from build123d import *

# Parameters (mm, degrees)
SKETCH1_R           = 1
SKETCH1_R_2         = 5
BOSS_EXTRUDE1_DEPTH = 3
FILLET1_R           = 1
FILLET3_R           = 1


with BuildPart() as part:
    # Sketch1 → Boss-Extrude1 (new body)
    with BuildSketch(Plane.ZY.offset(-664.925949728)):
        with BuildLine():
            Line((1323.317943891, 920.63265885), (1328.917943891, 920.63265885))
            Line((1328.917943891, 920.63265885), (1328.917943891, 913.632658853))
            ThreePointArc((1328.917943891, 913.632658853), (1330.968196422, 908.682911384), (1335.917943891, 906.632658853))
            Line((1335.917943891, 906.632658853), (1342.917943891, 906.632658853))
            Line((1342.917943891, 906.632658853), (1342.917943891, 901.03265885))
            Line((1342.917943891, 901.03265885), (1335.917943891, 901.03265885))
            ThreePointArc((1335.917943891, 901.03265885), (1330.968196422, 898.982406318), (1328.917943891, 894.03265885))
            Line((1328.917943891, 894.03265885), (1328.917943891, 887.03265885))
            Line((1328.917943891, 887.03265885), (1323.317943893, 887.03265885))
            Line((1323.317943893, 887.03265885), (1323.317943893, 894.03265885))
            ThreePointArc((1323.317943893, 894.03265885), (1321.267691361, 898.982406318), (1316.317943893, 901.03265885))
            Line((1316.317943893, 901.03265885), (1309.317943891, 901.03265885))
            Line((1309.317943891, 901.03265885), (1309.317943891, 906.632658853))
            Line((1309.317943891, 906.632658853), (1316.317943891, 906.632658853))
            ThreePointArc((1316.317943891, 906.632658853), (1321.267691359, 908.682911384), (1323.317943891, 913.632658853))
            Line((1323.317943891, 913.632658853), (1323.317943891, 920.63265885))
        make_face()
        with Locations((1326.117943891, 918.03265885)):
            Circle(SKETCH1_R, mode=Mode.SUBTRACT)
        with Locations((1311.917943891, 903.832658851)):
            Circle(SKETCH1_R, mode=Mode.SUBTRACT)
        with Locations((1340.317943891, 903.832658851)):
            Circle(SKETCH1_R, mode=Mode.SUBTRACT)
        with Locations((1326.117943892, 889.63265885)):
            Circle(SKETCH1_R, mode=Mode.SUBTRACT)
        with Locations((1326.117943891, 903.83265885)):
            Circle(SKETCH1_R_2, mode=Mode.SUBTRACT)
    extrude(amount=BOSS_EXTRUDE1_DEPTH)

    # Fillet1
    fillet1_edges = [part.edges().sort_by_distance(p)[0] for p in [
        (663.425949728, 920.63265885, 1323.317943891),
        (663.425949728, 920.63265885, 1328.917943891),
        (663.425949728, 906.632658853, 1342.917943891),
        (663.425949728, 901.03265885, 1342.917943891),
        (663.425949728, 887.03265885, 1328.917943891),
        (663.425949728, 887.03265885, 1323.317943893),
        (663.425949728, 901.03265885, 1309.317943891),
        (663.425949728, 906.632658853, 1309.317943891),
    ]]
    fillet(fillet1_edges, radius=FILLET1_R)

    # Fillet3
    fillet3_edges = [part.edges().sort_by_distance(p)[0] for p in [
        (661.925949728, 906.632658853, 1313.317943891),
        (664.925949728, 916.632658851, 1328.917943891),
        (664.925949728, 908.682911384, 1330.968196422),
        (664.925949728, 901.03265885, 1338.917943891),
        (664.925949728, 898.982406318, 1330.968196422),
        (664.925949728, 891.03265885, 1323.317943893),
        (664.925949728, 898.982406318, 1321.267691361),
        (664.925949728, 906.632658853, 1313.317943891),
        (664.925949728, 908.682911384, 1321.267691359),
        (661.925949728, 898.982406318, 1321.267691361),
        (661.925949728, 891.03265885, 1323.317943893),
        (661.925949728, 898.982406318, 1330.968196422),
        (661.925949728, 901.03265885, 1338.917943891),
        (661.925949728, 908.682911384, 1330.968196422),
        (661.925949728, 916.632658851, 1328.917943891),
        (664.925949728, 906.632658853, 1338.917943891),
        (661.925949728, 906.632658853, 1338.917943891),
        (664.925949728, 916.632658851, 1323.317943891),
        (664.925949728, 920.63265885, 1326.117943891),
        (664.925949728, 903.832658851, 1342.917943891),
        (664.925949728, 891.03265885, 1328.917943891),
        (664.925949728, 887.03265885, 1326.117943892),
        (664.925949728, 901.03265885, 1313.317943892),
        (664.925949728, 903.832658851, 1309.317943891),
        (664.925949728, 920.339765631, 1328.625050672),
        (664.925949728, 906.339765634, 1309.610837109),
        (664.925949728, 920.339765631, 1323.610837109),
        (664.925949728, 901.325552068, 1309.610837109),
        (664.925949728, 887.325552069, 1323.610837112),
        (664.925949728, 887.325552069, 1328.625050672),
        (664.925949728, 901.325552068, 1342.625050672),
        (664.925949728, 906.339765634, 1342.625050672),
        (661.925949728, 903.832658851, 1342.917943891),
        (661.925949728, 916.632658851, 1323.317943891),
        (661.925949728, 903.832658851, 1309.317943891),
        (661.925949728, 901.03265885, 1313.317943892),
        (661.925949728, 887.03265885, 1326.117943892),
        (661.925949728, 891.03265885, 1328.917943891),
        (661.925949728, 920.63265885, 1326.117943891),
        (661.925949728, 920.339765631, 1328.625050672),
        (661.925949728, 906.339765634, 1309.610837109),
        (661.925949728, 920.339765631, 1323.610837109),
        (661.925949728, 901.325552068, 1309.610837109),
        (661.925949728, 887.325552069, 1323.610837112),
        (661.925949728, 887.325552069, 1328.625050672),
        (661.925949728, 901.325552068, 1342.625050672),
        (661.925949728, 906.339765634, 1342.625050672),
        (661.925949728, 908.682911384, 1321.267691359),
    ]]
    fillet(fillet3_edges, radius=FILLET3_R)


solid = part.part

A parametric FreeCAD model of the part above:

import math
import FreeCAD as App
import Part
import Sketcher

V = App.Vector


def edges_at(feature, points):
    """Names of the edges that pass closest to the given points."""
    edges = feature.Shape.Edges
    near = lambda p: min(range(len(edges)), key=lambda i: edges[i].distToShape(Part.Vertex(*p))[0])
    return sorted({f"Edge{near(p) + 1}" for p in points})

doc = App.newDocument("Part")
body = doc.addObject("PartDesign::Body", "Body")

# Sketch on YZ plane
sketch1 = body.newObject("Sketcher::SketchObject", "Sketch")
sketch1.AttachmentSupport = (doc.getObject("YZ_Plane"), [""])
sketch1.MapMode = "FlatFace"
sketch1.AttachmentOffset = App.Placement(V(0, 0, 664.92595), App.Rotation())
sketch1.addGeometry([
    Part.LineSegment(V(920.6, 1328.9, 0), V(920.6, 1323.3, 0)),  # 0
    Part.LineSegment(V(920.6, 1323.3, 0), V(913.6, 1323.3, 0)),  # 1
    Part.ArcOfCircle(Part.Circle(V(913.6, 1316.3, 0), V(0, 0, 1), 7), math.radians(90), math.radians(180)),  # 2
    Part.LineSegment(V(906.6, 1316.3, 0), V(906.6, 1309.3, 0)),  # 3
    Part.LineSegment(V(906.6, 1309.3, 0), V(901, 1309.3, 0)),  # 4
    Part.LineSegment(V(901, 1309.3, 0), V(901, 1316.3, 0)),  # 5
    Part.ArcOfCircle(Part.Circle(V(894, 1316.3, 0), V(0, 0, 1), 7), math.radians(0), math.radians(90)),  # 6
    Part.LineSegment(V(894, 1323.3, 0), V(887, 1323.3, 0)),  # 7
    Part.LineSegment(V(887, 1323.3, 0), V(887, 1328.9, 0)),  # 8
    Part.LineSegment(V(887, 1328.9, 0), V(894, 1328.9, 0)),  # 9
    Part.ArcOfCircle(Part.Circle(V(894, 1335.9, 0), V(0, 0, 1), 7), math.radians(-90), math.radians(0)),  # 10
    Part.LineSegment(V(901, 1335.9, 0), V(901, 1342.9, 0)),  # 11
    Part.LineSegment(V(901, 1342.9, 0), V(906.6, 1342.9, 0)),  # 12
    Part.LineSegment(V(906.6, 1342.9, 0), V(906.6, 1335.9, 0)),  # 13
    Part.ArcOfCircle(Part.Circle(V(913.6, 1335.9, 0), V(0, 0, 1), 7), math.radians(180), math.radians(270)),  # 14
    Part.LineSegment(V(913.6, 1328.9, 0), V(920.6, 1328.9, 0)),  # 15
    Part.Circle(V(889.6, 1326.1, 0), V(0, 0, 1), 1),  # 16
    Part.Circle(V(903.8, 1340.3, 0), V(0, 0, 1), 1),  # 17
    Part.Circle(V(903.8, 1326.1, 0), V(0, 0, 1), 5),  # 18
    Part.Circle(V(918, 1326.1, 0), V(0, 0, 1), 1),  # 19
    Part.Circle(V(903.8, 1311.9, 0), V(0, 0, 1), 1),  # 20
], False)
sketch1.addConstraint([
    Sketcher.Constraint("Coincident", 0, 2, 1, 1),
    Sketcher.Constraint("Tangent", 1, 2, 2, 1),
    Sketcher.Constraint("Tangent", 2, 2, 3, 1),
    Sketcher.Constraint("Coincident", 3, 2, 4, 1),
    Sketcher.Constraint("Coincident", 4, 2, 5, 1),
    Sketcher.Constraint("Tangent", 5, 2, 6, 1),
    Sketcher.Constraint("Tangent", 6, 2, 7, 1),
    Sketcher.Constraint("Coincident", 7, 2, 8, 1),
    Sketcher.Constraint("Coincident", 8, 2, 9, 1),
    Sketcher.Constraint("Tangent", 9, 2, 10, 1),
    Sketcher.Constraint("Tangent", 10, 2, 11, 1),
    Sketcher.Constraint("Coincident", 11, 2, 12, 1),
    Sketcher.Constraint("Coincident", 12, 2, 13, 1),
    Sketcher.Constraint("Tangent", 13, 2, 14, 1),
    Sketcher.Constraint("Tangent", 14, 2, 15, 1),
    Sketcher.Constraint("Coincident", 15, 2, 0, 1),
    Sketcher.Constraint("Vertical", 0),
    Sketcher.Constraint("Horizontal", 1),
    Sketcher.Constraint("Vertical", 3),
    Sketcher.Constraint("Horizontal", 4),
    Sketcher.Constraint("Vertical", 5),
    Sketcher.Constraint("Horizontal", 7),
    Sketcher.Constraint("Vertical", 8),
    Sketcher.Constraint("Horizontal", 9),
    Sketcher.Constraint("Vertical", 11),
    Sketcher.Constraint("Horizontal", 12),
    Sketcher.Constraint("Vertical", 13),
    Sketcher.Constraint("Horizontal", 15),
    Sketcher.Constraint("Equal", 2, 6),
    Sketcher.Constraint("Equal", 6, 10),
    Sketcher.Constraint("Equal", 10, 14),
    Sketcher.Constraint("Equal", 16, 17),
    Sketcher.Constraint("Equal", 17, 19),
    Sketcher.Constraint("Equal", 19, 20),
    Sketcher.Constraint("Horizontal", 2, 3, 6, 3),
    Sketcher.Constraint("Horizontal", 10, 3, 14, 3),
    Sketcher.Constraint("Horizontal", 16, 3, 18, 3),
    Sketcher.Constraint("Horizontal", 18, 3, 19, 3),
    Sketcher.Constraint("Vertical", 6, 3, 10, 3),
    Sketcher.Constraint("Vertical", 2, 3, 14, 3),
    Sketcher.Constraint("Vertical", 17, 3, 18, 3),
    Sketcher.Constraint("Vertical", 18, 3, 20, 3),
    Sketcher.Constraint("Equal", 1, 7),
    Sketcher.Constraint("Equal", 12, 0),
    Sketcher.Constraint("Equal", 15, 3),
    Sketcher.Constraint("Equal", 5, 11),
    Sketcher.Constraint("Diameter", 16, 2.0),
    Sketcher.Constraint("Diameter", 18, 10.0),
    Sketcher.Constraint("Radius", 2, 7.0),
    Sketcher.Constraint("DistanceX", 1, 2, 1, 1, 7.0),
    Sketcher.Constraint("DistanceX", 4, 2, 4, 1, 5.6),
    Sketcher.Constraint("DistanceX", 16, 3, 14, 3, 24.0),
    Sketcher.Constraint("DistanceY", 2, 3, 17, 3, 24.0),
    Sketcher.Constraint("DistanceX", 10, 3, 19, 3, 24.0),
    Sketcher.Constraint("DistanceY", 16, 3, 10, 3, 9.8),
    Sketcher.Constraint("DistanceX", 10, 3, 17, 3, 9.8),
    Sketcher.Constraint("DistanceY", 20, 3, 2, 3, 4.4),
    Sketcher.Constraint("DistanceX", -1, 1, 2, 3, 913.632659),
    Sketcher.Constraint("DistanceY", -1, 1, 2, 3, 1316.317944),
])
pad1 = body.newObject("PartDesign::Pad", "Pad")
pad1.Profile = sketch1
pad1.Length = 3
pad1.Reversed = True
doc.recompute()

fillet = body.newObject("PartDesign::Fillet", "Fillet")
fillet.Base = (pad1, edges_at(pad1, [
    (663.426, 920.633, 1323.318),
    (663.426, 920.633, 1328.918),
    (663.426, 906.633, 1342.918),
    (663.426, 901.033, 1342.918),
    (663.426, 887.033, 1328.918),
    (663.426, 887.033, 1323.318),
    (663.426, 901.033, 1309.318),
    (663.426, 906.633, 1309.318),
]))
fillet.Radius = 1
doc.recompute()

fillet2 = body.newObject("PartDesign::Fillet", "Fillet001")
fillet2.Base = (fillet, edges_at(fillet, [
    (661.926, 906.633, 1313.318),
    (664.926, 916.633, 1328.918),
    (664.926, 908.683, 1330.968),
    (664.926, 901.033, 1338.918),
    (664.926, 898.982, 1330.968),
    (664.926, 891.033, 1323.318),
    (664.926, 898.982, 1321.268),
    (664.926, 906.633, 1313.318),
    (664.926, 908.683, 1321.268),
    (661.926, 898.982, 1321.268),
    (661.926, 891.033, 1323.318),
    (661.926, 898.982, 1330.968),
    (661.926, 901.033, 1338.918),
    (661.926, 908.683, 1330.968),
    (661.926, 916.633, 1328.918),
    (664.926, 906.633, 1338.918),
    (661.926, 906.633, 1338.918),
    (664.926, 916.633, 1323.318),
    (664.926, 920.633, 1326.118),
    (664.926, 903.833, 1342.918),
    (664.926, 891.033, 1328.918),
    (664.926, 887.033, 1326.118),
    (664.926, 901.033, 1313.318),
    (664.926, 903.833, 1309.318),
    (664.926, 920.34, 1328.625),
    (664.926, 906.34, 1309.611),
    (664.926, 920.34, 1323.611),
    (664.926, 901.326, 1309.611),
    (664.926, 887.326, 1323.611),
    (664.926, 887.326, 1328.625),
    (664.926, 901.326, 1342.625),
    (664.926, 906.34, 1342.625),
    (661.926, 903.833, 1342.918),
    (661.926, 916.633, 1323.318),
    (661.926, 903.833, 1309.318),
    (661.926, 901.033, 1313.318),
    (661.926, 887.033, 1326.118),
    (661.926, 891.033, 1328.918),
    (661.926, 920.633, 1326.118),
    (661.926, 920.34, 1328.625),
    (661.926, 906.34, 1309.611),
    (661.926, 920.34, 1323.611),
    (661.926, 901.326, 1309.611),
    (661.926, 887.326, 1323.611),
    (661.926, 887.326, 1328.625),
    (661.926, 901.326, 1342.625),
    (661.926, 906.34, 1342.625),
    (661.926, 908.683, 1321.268),
]))
fillet2.Radius = 1

doc.recompute()
